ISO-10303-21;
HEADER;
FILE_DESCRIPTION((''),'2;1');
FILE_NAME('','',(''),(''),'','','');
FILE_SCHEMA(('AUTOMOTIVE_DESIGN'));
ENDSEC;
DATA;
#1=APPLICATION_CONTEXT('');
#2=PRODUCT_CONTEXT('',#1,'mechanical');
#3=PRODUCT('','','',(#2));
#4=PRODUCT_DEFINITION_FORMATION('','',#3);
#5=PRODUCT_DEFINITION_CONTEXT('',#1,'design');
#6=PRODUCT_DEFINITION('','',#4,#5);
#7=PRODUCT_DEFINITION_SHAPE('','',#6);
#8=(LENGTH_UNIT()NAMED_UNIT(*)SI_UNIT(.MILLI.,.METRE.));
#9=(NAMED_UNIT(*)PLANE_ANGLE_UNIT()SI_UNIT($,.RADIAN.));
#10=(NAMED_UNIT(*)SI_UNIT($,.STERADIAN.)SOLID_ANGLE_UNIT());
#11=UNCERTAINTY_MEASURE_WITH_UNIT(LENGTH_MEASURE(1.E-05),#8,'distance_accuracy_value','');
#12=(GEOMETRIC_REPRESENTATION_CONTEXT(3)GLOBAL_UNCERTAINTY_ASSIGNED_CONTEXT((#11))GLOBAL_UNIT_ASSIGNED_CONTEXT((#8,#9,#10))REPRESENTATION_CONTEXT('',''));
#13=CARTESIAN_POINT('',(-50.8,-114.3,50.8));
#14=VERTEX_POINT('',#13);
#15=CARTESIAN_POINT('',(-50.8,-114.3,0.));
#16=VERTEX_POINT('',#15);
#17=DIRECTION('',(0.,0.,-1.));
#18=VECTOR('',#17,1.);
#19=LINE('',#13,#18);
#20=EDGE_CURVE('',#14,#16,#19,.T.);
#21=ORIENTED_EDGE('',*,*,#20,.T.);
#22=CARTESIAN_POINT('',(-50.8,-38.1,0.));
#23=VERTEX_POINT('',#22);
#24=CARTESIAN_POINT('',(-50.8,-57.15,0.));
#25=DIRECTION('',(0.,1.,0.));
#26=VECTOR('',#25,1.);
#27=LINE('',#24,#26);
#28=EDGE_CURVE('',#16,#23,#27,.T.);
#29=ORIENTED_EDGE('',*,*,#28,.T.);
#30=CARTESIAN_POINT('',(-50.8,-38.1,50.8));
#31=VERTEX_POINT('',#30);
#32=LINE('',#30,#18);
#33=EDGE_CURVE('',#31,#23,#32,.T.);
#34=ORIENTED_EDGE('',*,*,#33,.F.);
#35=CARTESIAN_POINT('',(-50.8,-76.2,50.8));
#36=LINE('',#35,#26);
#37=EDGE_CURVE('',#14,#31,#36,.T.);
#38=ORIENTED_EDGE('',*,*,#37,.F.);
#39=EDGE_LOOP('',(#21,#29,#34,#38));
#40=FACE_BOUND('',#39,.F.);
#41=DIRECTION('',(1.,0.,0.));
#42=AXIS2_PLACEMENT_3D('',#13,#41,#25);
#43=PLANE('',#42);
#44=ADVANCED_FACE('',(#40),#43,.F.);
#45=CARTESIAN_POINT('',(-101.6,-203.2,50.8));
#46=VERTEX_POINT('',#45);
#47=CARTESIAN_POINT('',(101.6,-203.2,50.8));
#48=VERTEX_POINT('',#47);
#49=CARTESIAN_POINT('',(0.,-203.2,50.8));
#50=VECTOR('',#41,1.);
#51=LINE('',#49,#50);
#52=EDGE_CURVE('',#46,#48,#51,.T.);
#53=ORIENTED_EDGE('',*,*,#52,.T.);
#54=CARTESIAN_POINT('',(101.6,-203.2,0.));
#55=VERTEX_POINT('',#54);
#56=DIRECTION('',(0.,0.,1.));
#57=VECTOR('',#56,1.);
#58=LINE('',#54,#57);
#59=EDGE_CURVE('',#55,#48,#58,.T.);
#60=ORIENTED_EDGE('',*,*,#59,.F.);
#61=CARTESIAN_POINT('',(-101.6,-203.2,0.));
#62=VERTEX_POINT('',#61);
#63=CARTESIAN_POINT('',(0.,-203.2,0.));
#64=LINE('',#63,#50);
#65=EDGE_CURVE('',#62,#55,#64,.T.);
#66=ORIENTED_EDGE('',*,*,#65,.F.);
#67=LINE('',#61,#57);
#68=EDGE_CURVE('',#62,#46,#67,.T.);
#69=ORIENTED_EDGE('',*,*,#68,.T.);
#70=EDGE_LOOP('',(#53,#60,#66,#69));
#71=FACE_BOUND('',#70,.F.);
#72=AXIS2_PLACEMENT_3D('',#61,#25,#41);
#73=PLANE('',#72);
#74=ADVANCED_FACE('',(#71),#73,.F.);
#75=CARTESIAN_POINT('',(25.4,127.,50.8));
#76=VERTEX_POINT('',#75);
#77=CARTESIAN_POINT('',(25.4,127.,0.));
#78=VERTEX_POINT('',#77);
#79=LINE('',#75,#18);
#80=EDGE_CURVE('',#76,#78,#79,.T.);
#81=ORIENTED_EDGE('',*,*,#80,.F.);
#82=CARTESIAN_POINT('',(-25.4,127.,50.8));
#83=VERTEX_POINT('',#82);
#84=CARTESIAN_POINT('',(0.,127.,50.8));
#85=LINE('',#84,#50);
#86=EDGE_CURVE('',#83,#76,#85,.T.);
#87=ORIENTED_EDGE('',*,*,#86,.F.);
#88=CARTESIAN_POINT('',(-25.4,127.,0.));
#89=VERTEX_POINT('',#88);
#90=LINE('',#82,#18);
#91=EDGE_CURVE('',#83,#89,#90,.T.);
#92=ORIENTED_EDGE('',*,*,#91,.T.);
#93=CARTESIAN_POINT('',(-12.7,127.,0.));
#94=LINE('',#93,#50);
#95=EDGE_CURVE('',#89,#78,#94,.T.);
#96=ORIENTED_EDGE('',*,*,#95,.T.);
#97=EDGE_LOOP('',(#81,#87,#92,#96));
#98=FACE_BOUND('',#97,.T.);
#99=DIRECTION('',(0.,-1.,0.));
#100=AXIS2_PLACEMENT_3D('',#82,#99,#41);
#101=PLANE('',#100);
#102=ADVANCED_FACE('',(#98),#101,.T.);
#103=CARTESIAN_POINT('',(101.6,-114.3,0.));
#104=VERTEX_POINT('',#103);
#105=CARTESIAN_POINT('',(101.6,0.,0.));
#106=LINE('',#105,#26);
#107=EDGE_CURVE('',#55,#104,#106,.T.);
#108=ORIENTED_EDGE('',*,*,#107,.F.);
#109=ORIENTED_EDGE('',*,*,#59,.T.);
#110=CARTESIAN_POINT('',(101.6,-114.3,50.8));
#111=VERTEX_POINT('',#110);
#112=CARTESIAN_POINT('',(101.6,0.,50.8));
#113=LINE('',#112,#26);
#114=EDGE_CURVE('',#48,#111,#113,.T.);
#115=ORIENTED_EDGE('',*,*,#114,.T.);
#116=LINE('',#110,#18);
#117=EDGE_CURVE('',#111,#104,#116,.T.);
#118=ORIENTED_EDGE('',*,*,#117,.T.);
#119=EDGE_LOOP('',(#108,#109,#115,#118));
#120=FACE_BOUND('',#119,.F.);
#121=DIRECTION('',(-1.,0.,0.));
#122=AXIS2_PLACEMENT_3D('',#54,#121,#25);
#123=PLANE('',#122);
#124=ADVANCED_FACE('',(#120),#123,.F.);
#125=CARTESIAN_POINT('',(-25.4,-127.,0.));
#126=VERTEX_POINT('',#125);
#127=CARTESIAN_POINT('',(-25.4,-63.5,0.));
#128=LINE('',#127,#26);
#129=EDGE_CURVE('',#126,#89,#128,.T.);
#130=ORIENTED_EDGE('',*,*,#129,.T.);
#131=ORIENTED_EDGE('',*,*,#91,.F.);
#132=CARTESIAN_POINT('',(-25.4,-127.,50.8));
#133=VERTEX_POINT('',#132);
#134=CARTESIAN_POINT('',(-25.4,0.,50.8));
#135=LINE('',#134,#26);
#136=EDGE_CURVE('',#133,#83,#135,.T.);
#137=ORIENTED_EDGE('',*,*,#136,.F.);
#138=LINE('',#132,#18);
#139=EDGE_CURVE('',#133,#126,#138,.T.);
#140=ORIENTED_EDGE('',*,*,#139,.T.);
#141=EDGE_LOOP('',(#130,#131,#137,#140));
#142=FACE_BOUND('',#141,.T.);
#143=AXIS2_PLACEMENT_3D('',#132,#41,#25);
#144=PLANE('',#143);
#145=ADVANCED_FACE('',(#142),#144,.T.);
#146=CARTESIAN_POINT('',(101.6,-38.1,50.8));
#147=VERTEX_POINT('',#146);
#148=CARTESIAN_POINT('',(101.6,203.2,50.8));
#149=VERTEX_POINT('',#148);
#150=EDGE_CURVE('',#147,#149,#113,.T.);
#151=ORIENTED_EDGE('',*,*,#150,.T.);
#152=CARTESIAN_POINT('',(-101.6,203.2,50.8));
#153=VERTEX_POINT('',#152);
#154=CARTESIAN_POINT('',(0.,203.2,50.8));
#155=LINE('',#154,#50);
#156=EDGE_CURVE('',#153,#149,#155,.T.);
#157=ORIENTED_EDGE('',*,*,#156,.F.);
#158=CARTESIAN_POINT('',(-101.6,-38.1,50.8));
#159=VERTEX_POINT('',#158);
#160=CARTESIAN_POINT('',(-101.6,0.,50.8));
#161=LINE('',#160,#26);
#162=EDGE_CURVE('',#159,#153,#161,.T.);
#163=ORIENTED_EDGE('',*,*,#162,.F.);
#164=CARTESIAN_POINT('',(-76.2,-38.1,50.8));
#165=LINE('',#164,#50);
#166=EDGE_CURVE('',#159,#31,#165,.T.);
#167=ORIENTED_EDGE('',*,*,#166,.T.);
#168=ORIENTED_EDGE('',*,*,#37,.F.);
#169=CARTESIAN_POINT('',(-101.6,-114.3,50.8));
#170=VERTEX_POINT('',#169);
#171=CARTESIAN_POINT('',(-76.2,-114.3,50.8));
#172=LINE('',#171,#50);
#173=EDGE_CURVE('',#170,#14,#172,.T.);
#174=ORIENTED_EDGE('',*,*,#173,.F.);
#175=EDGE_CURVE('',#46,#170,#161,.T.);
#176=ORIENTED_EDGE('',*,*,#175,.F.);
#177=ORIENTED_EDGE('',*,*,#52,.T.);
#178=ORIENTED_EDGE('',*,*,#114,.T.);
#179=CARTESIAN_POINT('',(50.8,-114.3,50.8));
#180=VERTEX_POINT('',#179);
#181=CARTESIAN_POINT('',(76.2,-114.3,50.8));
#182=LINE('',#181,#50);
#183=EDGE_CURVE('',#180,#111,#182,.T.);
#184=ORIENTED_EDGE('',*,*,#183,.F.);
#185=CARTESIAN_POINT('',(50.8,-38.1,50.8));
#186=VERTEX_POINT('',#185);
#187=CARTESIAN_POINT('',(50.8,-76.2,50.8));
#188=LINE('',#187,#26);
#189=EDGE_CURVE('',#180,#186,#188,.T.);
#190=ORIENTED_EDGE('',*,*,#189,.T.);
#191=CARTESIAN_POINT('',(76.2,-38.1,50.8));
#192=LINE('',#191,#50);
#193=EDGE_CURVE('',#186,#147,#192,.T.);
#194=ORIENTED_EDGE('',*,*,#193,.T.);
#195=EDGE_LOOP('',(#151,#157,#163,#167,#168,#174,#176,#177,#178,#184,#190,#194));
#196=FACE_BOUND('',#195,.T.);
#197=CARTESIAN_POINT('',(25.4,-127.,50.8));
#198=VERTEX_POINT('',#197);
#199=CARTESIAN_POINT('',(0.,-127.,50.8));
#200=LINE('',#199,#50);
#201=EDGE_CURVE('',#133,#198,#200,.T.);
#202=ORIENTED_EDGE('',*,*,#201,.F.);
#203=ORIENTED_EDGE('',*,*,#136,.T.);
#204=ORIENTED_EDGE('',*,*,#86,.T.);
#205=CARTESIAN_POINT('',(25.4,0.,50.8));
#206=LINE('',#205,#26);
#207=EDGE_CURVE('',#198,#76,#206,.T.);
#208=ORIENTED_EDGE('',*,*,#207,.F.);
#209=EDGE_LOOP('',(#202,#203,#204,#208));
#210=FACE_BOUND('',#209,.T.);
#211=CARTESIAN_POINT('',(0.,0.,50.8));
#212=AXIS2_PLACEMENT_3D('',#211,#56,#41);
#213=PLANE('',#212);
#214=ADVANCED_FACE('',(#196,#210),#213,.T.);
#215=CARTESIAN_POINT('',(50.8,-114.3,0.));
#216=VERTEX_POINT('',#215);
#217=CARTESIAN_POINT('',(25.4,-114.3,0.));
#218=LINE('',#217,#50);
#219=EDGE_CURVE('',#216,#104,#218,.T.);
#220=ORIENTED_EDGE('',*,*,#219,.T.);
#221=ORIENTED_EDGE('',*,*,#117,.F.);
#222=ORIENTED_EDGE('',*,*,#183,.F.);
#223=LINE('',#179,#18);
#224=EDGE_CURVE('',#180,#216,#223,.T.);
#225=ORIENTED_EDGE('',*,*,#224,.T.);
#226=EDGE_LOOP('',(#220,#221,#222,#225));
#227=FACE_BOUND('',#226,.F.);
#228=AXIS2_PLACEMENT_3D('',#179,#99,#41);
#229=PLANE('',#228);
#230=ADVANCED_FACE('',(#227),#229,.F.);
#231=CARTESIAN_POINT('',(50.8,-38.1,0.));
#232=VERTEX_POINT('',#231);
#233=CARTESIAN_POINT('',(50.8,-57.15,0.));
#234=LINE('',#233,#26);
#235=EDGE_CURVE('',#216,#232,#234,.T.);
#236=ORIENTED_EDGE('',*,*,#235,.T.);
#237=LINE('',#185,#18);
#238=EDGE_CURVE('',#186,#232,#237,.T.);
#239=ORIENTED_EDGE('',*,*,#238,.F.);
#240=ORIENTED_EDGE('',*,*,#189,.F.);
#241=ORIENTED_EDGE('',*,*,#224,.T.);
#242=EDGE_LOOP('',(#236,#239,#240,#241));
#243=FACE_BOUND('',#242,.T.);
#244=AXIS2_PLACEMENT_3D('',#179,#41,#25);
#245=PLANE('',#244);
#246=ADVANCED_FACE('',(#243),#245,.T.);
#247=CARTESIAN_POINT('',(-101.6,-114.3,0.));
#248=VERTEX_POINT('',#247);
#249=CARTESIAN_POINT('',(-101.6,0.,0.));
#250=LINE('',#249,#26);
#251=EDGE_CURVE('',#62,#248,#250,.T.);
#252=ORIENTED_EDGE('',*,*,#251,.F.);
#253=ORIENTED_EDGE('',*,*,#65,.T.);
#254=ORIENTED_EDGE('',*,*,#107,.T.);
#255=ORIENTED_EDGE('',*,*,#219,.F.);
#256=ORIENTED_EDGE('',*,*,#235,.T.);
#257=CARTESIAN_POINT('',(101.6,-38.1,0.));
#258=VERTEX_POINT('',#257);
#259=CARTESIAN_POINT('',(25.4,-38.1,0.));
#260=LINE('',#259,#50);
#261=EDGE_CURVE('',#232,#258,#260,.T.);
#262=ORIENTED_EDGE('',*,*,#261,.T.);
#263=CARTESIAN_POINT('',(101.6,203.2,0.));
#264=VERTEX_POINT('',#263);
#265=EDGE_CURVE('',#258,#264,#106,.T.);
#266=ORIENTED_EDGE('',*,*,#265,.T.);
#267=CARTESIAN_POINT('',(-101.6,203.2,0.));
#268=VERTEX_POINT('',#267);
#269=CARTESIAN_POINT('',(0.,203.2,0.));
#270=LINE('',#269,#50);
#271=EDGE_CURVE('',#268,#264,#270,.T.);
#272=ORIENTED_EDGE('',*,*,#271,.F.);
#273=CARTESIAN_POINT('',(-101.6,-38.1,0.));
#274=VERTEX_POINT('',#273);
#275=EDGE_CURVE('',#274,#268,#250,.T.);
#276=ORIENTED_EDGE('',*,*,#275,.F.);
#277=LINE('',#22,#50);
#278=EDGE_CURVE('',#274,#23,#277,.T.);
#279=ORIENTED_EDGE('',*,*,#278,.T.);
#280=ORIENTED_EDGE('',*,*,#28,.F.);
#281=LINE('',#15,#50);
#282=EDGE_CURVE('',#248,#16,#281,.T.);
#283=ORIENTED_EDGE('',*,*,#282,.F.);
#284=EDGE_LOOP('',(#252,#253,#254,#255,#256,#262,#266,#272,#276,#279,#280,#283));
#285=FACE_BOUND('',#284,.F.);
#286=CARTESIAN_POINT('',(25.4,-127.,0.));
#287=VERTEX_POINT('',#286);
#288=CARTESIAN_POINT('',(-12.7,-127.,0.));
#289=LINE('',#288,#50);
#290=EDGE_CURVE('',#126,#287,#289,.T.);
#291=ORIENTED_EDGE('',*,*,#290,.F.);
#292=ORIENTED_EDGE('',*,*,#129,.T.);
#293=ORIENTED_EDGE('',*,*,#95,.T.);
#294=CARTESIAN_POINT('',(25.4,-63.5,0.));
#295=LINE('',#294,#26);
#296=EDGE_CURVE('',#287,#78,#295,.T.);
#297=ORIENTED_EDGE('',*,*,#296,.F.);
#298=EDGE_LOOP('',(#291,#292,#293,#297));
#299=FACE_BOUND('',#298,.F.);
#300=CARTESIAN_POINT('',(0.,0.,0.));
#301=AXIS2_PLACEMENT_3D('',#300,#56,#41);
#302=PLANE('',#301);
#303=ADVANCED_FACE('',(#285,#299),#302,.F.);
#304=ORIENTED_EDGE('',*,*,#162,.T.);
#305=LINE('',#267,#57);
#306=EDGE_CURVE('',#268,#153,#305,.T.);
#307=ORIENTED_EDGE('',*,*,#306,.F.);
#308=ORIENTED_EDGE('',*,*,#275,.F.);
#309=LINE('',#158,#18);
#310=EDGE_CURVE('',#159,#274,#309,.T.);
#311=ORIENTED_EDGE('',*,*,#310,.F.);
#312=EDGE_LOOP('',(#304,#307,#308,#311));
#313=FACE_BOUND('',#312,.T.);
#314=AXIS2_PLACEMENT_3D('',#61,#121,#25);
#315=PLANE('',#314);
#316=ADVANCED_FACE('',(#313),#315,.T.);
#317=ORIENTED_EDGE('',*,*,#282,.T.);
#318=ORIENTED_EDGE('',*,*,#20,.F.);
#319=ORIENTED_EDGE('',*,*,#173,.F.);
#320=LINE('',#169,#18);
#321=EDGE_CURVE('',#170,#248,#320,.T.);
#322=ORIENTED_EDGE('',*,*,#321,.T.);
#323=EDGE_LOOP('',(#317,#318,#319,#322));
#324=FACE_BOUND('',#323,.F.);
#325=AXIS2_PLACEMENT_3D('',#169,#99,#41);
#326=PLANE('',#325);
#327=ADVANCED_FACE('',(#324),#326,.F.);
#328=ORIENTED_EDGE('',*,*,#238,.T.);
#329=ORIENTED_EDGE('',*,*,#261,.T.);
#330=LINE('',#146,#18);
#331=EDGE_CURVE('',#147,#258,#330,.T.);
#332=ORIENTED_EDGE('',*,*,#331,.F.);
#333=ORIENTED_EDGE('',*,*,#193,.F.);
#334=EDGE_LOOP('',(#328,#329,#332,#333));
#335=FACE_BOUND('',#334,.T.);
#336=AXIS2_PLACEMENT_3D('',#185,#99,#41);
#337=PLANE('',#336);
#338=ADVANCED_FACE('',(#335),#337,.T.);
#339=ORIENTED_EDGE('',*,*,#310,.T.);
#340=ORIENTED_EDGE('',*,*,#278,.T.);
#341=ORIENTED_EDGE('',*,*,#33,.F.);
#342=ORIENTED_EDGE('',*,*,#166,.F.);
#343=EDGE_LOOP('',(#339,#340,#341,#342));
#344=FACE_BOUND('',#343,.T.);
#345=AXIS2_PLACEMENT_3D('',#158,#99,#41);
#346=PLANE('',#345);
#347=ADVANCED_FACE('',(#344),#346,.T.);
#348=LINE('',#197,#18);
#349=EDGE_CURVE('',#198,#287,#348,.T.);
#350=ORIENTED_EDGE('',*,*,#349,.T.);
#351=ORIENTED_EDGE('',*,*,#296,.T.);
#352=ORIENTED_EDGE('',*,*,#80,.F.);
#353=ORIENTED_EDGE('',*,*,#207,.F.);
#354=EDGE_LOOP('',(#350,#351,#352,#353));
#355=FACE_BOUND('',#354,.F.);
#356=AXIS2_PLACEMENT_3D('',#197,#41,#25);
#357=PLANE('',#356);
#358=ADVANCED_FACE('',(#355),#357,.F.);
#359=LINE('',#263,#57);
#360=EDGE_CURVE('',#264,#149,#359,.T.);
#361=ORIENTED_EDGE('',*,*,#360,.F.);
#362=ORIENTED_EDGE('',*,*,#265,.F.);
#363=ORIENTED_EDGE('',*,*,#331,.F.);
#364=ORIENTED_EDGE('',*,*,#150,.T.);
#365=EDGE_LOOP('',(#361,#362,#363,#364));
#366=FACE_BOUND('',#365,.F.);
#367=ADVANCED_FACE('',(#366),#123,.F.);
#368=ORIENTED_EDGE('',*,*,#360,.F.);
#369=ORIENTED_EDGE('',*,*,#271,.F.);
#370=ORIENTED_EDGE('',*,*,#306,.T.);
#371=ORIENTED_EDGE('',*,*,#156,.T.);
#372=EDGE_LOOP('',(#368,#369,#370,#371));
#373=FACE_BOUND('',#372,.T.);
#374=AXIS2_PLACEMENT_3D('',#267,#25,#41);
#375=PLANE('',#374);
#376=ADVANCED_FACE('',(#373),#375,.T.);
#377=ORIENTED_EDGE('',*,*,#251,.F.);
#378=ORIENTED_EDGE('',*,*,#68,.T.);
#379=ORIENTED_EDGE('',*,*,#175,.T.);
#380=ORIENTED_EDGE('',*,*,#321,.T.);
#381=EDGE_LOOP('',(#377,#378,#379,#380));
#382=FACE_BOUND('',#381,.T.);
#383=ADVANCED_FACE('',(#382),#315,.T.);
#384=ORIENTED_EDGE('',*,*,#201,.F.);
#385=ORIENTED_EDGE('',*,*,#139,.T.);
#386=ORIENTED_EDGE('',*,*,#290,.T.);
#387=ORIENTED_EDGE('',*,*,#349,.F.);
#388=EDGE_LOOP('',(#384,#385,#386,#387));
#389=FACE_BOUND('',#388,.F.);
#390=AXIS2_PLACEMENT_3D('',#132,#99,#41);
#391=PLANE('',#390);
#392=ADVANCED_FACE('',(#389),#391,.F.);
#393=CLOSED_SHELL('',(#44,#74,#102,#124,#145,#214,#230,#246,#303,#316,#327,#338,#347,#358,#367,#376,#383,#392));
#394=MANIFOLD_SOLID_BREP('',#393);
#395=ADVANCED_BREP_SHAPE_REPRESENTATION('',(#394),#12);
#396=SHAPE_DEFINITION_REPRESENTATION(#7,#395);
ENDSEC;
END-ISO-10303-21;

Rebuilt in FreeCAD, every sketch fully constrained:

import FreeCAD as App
import Part
import Sketcher
from FreeCAD import Vector
Q = App.Units.Quantity


def add_polygon(sketch, points):
    """Adds a closed chain of lines whose ends are joined by coincident constraints."""
    first, n = sketch.GeometryCount, len(points)
    for a, b in zip(points, points[1:] + points[:1]):
        sketch.addGeometry(Part.LineSegment(App.Vector(*a, 0), App.Vector(*b, 0)), False)
    for i in range(n):
        sketch.addConstraint(Sketcher.Constraint("Coincident", first + i, 2, first + (i + 1) % n, 1))

doc = App.newDocument("Part")
params = doc.addObject("Spreadsheet::Sheet", "Params")
for row, (alias, value) in enumerate([
    ("sketch1_width", "8 in"),
    ("sketch1_height", "16 in"),
    ("pad1_length", "2 in"),
    ("sketch2_width", "2 in"),
    ("sketch2_height", "10 in"),
    ("sketch2_height2", "3 in"),
], start=1):
    params.set(f"A{row}", alias)
    params.set(f"B{row}", "=" + value)
    params.setAlias(f"B{row}", alias)

body = doc.addObject("PartDesign::Body", "Body")

# Sketch on XY plane
sketch1 = body.newObject("Sketcher::SketchObject", "Sketch")
sketch1.AttachmentSupport = (doc.getObject("XY_Plane"), [""])
sketch1.MapMode = "FlatFace"
add_polygon(sketch1, [(-101.6, 203.2), (-101.6, -203.2), (101.6, -203.2), (101.6, 203.2)])  # lines 0-3
sketch1.addConstraint(Sketcher.Constraint("Vertical", 0))
sketch1.addConstraint(Sketcher.Constraint("Horizontal", 1))
sketch1.addConstraint(Sketcher.Constraint("Vertical", 2))
sketch1.addConstraint(Sketcher.Constraint("Horizontal", 3))
sketch1.addConstraint(Sketcher.Constraint("Symmetric", 0, 2, 2, 2, -1, 1))
sketch1.addConstraint(Sketcher.Constraint("DistanceX", 1, 1, 1, 2, Q("8 in")))
sketch1.addConstraint(Sketcher.Constraint("DistanceY", 0, 2, 0, 1, Q("16 in")))
sketch1.setExpression("Constraints[9]", "Params.sketch1_width")
sketch1.setExpression("Constraints[10]", "Params.sketch1_height")
pad1 = body.newObject("PartDesign::Pad", "Pad")
pad1.Profile = sketch1
pad1.setExpression("Length", "Params.pad1_length")

# Sketch on XY plane
sketch2 = body.newObject("Sketcher::SketchObject", "Sketch001")
sketch2.AttachmentSupport = (doc.getObject("XY_Plane"), [""])
sketch2.MapMode = "FlatFace"
sketch2.AttachmentOffset = App.Placement(Vector(0, 0, 2 * 25.4), App.Rotation())
add_polygon(sketch2, [(-25.4, 127), (-25.4, -127), (25.4, -127), (25.4, 127)])  # lines 0-3
add_polygon(sketch2, [(-101.6, -38.1), (-101.6, -114.3), (-50.8, -114.3), (-50.8, -38.1)])  # lines 4-7
add_polygon(sketch2, [(50.8, -38.1), (50.8, -114.3), (101.6, -114.3), (101.6, -38.1)])  # lines 8-11
sketch2.addConstraint(Sketcher.Constraint("Vertical", 0))
sketch2.addConstraint(Sketcher.Constraint("Horizontal", 1))
sketch2.addConstraint(Sketcher.Constraint("Vertical", 2))
sketch2.addConstraint(Sketcher.Constraint("Horizontal", 3))
sketch2.addConstraint(Sketcher.Constraint("Vertical", 4))
sketch2.addConstraint(Sketcher.Constraint("Horizontal", 5))
sketch2.addConstraint(Sketcher.Constraint("Vertical", 6))
sketch2.addConstraint(Sketcher.Constraint("Horizontal", 7))
sketch2.addConstraint(Sketcher.Constraint("Vertical", 8))
sketch2.addConstraint(Sketcher.Constraint("Horizontal", 9))
sketch2.addConstraint(Sketcher.Constraint("Vertical", 10))
sketch2.addConstraint(Sketcher.Constraint("Horizontal", 11))
sketch2.addConstraint(Sketcher.Constraint("Symmetric", 0, 2, 2, 2, -1, 1))
sketch2.addConstraint(Sketcher.Constraint("Symmetric", 5, 2, 8, 2, -2))
sketch2.addConstraint(Sketcher.Constraint("Symmetric", 7, 2, 10, 2, -2))
sketch2.addConstraint(Sketcher.Constraint("Equal", 3, 5))
sketch2.addConstraint(Sketcher.Constraint("DistanceX", 1, 1, 1, 2, Q("2 in")))
sketch2.addConstraint(Sketcher.Constraint("DistanceY", 0, 2, 0, 1, Q("10 in")))
sketch2.addConstraint(Sketcher.Constraint("DistanceY", 4, 2, 4, 1, Q("3 in")))
sketch2.addConstraint(Sketcher.Constraint("DistanceX", 4, 2, -1, 1, Q("4 in")))
sketch2.addConstraint(Sketcher.Constraint("DistanceY", 4, 2, -1, 1, Q("4.5 in")))
sketch2.setExpression("Constraints[28]", "Params.sketch2_width")
sketch2.setExpression("Constraints[29]", "Params.sketch2_height")
sketch2.setExpression("Constraints[30]", "Params.sketch2_height2")
pocket1 = body.newObject("PartDesign::Pocket", "Pocket")
pocket1.Profile = sketch2
pocket1.Type = "ThroughAll"

doc.recompute()
